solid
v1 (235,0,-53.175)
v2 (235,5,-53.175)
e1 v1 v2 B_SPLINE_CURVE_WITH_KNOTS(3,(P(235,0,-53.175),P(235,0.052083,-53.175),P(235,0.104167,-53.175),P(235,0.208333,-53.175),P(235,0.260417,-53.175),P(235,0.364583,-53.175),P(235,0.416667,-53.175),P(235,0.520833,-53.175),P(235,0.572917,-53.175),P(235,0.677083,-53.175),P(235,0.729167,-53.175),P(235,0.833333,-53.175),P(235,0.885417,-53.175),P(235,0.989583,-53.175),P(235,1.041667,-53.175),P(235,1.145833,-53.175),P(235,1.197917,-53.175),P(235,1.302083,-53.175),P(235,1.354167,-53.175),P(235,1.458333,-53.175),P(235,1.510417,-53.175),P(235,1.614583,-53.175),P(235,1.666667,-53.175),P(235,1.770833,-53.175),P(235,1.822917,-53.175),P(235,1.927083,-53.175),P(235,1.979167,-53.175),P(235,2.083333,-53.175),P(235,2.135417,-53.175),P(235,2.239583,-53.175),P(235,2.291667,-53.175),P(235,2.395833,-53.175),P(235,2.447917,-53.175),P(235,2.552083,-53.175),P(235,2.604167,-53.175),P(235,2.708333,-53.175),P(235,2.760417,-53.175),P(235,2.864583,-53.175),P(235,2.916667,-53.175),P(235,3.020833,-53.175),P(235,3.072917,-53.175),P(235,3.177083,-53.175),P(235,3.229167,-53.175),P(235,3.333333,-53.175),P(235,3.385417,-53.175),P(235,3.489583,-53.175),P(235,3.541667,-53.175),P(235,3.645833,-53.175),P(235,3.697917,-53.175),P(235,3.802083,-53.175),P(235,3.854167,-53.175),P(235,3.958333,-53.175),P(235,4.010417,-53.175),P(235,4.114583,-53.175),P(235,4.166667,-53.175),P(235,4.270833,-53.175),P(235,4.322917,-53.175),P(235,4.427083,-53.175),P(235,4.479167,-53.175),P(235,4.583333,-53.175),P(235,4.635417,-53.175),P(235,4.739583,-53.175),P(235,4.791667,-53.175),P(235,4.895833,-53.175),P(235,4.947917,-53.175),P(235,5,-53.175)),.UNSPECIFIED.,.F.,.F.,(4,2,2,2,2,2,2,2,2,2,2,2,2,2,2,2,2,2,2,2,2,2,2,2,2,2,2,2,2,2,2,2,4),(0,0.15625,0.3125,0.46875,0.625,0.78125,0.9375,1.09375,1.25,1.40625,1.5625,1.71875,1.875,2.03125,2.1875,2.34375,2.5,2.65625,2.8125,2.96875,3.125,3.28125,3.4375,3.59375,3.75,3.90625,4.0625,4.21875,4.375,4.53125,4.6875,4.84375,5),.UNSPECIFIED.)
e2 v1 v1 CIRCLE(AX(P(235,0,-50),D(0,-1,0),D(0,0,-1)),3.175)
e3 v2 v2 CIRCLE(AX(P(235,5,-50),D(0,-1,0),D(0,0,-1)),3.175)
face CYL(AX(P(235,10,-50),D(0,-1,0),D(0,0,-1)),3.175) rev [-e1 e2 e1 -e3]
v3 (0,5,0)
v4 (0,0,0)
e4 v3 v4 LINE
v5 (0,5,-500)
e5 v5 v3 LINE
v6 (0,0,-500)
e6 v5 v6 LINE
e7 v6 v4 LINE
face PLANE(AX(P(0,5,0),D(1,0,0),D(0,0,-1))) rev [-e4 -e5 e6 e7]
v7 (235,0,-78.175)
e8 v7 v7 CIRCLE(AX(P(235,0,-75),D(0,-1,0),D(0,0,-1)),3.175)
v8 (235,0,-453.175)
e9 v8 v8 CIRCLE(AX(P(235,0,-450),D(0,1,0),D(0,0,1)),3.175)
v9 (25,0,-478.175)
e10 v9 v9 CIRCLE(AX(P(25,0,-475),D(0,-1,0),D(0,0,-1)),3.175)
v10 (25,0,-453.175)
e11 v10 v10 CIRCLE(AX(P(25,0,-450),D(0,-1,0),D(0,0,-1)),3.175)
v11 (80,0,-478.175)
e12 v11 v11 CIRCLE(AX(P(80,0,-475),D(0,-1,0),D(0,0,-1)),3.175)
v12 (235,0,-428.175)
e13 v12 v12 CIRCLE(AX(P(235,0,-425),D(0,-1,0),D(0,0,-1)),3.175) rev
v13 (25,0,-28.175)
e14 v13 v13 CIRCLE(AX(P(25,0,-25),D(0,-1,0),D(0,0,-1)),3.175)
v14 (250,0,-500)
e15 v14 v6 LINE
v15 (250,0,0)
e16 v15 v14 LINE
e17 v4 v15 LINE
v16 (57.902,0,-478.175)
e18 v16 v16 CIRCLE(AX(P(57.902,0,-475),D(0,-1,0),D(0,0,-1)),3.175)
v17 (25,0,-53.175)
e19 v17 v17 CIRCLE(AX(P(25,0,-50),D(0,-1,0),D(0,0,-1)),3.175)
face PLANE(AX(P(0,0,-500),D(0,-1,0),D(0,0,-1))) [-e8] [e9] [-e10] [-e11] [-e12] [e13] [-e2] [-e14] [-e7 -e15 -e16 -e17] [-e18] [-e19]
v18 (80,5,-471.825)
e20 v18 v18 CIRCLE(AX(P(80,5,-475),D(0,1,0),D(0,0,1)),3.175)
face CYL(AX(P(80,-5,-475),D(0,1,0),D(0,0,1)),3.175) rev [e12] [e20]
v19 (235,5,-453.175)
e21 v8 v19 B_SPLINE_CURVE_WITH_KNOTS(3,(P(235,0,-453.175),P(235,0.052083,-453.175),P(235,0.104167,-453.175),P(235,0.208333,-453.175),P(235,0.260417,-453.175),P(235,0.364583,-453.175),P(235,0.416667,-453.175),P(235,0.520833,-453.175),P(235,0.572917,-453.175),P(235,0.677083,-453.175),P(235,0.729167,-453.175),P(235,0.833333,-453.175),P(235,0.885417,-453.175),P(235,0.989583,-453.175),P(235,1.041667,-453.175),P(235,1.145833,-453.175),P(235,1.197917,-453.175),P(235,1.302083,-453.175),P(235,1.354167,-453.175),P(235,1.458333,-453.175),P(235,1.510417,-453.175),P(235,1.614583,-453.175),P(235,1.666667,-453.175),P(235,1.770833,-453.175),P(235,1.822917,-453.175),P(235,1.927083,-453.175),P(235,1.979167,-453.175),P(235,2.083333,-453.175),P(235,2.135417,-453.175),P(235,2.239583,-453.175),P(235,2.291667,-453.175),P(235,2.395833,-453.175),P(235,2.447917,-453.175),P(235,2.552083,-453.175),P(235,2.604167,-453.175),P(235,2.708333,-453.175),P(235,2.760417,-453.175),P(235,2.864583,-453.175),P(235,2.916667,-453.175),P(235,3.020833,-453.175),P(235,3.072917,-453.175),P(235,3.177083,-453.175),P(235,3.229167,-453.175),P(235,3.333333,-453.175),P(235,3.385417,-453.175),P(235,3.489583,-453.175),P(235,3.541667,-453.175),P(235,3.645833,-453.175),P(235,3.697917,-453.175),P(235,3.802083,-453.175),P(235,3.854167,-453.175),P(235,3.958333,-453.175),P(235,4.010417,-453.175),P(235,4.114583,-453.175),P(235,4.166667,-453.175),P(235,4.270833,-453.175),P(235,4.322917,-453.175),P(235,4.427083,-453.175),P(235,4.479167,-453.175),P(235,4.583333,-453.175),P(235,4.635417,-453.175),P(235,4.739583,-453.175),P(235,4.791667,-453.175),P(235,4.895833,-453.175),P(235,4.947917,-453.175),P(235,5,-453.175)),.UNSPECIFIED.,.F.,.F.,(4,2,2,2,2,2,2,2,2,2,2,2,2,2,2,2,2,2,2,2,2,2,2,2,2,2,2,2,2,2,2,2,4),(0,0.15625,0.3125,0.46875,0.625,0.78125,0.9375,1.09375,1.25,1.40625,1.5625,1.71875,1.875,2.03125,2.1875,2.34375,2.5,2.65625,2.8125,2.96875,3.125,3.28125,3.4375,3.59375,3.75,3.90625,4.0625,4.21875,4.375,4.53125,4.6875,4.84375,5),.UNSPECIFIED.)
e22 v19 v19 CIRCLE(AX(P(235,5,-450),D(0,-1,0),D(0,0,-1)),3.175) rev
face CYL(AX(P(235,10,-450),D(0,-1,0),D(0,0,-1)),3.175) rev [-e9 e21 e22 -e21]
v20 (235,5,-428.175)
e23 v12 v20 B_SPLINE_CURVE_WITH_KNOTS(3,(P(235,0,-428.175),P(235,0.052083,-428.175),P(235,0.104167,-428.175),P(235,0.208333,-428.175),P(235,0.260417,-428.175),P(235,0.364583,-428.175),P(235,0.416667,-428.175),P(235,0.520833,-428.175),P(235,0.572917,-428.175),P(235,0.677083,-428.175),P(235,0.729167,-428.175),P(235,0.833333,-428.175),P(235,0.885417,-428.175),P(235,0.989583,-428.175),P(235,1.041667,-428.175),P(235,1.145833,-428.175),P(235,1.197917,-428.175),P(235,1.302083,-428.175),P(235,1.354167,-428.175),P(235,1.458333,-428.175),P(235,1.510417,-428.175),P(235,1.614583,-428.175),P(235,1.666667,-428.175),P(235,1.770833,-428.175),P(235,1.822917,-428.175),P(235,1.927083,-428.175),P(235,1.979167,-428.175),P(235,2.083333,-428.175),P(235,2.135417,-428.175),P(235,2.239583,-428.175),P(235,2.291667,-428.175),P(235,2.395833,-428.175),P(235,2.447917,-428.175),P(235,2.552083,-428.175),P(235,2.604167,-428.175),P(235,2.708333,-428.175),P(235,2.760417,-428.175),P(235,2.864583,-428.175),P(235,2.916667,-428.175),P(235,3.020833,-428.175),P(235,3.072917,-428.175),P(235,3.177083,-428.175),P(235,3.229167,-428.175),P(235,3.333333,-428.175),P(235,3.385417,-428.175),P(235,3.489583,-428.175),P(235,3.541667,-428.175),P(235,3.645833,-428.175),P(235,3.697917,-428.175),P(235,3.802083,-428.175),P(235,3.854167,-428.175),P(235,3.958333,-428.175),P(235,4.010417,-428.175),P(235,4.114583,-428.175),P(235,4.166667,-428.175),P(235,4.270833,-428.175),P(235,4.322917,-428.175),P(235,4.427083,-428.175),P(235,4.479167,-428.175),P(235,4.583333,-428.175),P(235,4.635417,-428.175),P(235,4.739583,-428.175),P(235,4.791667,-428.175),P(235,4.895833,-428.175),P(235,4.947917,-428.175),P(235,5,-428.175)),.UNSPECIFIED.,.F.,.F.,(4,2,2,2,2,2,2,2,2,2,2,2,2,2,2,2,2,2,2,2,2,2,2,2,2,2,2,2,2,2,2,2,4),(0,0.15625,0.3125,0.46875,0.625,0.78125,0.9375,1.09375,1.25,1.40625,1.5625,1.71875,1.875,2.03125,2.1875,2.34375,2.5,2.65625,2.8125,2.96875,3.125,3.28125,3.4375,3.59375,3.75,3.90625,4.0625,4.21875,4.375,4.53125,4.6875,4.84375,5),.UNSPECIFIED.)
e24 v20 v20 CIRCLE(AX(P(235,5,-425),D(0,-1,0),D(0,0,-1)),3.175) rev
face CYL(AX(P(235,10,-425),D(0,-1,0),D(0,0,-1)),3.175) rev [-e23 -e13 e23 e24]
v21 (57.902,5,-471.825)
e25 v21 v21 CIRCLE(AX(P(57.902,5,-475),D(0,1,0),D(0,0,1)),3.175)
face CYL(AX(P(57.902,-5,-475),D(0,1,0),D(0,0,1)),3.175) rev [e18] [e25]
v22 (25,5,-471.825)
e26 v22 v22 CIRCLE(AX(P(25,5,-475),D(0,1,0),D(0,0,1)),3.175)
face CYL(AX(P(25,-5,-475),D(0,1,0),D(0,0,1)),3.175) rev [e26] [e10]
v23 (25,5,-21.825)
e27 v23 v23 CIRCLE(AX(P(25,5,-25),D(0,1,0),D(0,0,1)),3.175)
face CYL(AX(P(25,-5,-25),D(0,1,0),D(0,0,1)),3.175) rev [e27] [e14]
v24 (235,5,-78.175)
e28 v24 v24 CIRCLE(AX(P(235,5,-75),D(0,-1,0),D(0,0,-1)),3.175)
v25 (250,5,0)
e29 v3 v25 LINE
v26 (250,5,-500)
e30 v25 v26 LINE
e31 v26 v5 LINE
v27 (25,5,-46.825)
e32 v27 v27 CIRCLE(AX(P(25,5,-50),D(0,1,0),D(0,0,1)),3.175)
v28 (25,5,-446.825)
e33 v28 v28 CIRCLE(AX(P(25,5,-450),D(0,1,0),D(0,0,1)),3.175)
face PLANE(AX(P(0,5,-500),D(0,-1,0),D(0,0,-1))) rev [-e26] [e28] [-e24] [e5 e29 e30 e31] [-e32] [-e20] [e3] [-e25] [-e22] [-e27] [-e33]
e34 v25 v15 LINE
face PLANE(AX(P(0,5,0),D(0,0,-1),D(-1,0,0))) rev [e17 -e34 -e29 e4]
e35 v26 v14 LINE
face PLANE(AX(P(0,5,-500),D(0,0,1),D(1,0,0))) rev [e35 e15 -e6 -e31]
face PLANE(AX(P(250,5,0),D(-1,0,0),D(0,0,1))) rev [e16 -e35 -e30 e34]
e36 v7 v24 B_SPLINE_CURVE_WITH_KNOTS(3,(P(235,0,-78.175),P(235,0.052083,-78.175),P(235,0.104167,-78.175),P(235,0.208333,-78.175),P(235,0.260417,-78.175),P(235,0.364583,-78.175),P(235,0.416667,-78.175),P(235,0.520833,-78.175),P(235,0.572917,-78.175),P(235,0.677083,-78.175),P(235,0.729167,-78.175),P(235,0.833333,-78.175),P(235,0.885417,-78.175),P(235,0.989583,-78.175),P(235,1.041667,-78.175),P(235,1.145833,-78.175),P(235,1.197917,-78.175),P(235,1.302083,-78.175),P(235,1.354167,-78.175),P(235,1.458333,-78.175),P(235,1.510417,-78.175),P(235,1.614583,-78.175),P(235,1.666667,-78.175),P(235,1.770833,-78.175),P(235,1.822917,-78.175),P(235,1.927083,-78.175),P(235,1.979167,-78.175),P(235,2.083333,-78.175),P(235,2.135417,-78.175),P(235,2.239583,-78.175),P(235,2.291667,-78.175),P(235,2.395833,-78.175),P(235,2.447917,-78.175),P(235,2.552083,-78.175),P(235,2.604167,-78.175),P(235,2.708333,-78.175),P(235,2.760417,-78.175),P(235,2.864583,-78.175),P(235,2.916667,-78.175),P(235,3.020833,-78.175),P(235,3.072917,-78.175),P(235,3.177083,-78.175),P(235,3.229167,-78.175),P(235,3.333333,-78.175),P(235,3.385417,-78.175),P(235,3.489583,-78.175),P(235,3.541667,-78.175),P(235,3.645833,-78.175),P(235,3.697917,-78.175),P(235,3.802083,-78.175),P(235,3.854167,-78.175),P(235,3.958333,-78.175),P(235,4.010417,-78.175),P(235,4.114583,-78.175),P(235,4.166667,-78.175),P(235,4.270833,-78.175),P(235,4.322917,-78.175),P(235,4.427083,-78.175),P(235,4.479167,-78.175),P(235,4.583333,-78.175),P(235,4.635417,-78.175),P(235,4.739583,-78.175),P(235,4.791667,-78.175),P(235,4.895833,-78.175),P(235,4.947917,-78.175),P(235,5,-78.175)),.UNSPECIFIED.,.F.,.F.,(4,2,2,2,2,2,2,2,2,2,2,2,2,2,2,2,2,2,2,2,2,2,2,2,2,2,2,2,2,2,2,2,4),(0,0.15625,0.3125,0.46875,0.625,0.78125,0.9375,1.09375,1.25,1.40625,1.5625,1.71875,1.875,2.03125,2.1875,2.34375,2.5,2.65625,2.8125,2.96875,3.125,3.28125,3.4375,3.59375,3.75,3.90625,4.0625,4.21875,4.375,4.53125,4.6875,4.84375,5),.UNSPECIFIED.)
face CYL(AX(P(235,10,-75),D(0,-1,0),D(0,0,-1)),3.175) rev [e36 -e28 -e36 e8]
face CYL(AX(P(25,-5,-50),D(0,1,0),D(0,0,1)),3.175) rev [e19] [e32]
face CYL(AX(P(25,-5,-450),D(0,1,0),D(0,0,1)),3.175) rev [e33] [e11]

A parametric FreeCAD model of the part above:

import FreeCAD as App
import Part
import Sketcher
Q = App.Units.Quantity

doc = App.newDocument("Part")
body = doc.addObject("PartDesign::Body", "Body")

sketch1 = body.newObject("Sketcher::SketchObject", "Sketch")
sketch1.AttachmentSupport = (doc.getObject("XZ_Plane"), [""])
sketch1.MapMode = "FlatFace"
sketch1.addGeometry([
    Part.LineSegment(App.Vector(0, -500, 0), App.Vector(0, 0, 0)),
    Part.LineSegment(App.Vector(0, 0, 0), App.Vector(250, 0, 0)),
    Part.LineSegment(App.Vector(250, 0, 0), App.Vector(250, -500, 0)),
    Part.LineSegment(App.Vector(250, -500, 0), App.Vector(0, -500, 0)),
], False)
sketch1.addConstraint([
    Sketcher.Constraint("Coincident", 0, 2, 1, 1),
    Sketcher.Constraint("Coincident", 1, 2, 2, 1),
    Sketcher.Constraint("Coincident", 2, 2, 3, 1),
    Sketcher.Constraint("Coincident", 3, 2, 0, 1),
    Sketcher.Constraint("Vertical", 0),
    Sketcher.Constraint("Horizontal", 1),
    Sketcher.Constraint("Vertical", 2),
    Sketcher.Constraint("Horizontal", 3),
    Sketcher.Constraint("Coincident", 0, 2, -1, 1),
    Sketcher.Constraint("DistanceX", 1, 1, 1, 2, Q("250 mm")),
    Sketcher.Constraint("DistanceY", 0, 1, 0, 2, Q("500 mm")),
])
pad1 = body.newObject("PartDesign::Pad", "Pad")
pad1.Profile = sketch1
pad1.Length = 5
pad1.Reversed = True

sketch2 = body.newObject("Sketcher::SketchObject", "Sketch001")
sketch2.AttachmentSupport = (doc.getObject("XZ_Plane"), [""])
sketch2.MapMode = "FlatFace"
sketch2.AttachmentOffset = App.Placement(App.Vector(0, 0, -5), App.Rotation())
sketch2.addGeometry([
    Part.Circle(App.Vector(25, -25, 0), App.Vector(0, 0, 1), 3.2),
    Part.Circle(App.Vector(25, -50, 0), App.Vector(0, 0, 1), 3.2),
    Part.Circle(App.Vector(25, -475, 0), App.Vector(0, 0, 1), 3.2),
    Part.Circle(App.Vector(25, -450, 0), App.Vector(0, 0, 1), 3.2),
], False)
sketch2.addConstraint([
    Sketcher.Constraint("Equal", 0, 1),
    Sketcher.Constraint("Equal", 1, 2),
    Sketcher.Constraint("Equal", 2, 3),
    Sketcher.Constraint("Vertical", 0, 3, 1, 3),
    Sketcher.Constraint("Vertical", 1, 3, 2, 3),
    Sketcher.Constraint("Vertical", 2, 3, 3, 3),
    Sketcher.Constraint("Diameter", 0, Q("6.35 mm")),
    Sketcher.Constraint("DistanceX", -1, 1, 0, 3, Q("25 mm")),
    Sketcher.Constraint("DistanceY", 0, 3, -1, 1, Q("25 mm")),
    Sketcher.Constraint("DistanceY", 1, 3, -1, 1, Q("50 mm")),
    Sketcher.Constraint("DistanceY", 2, 3, -1, 1, Q("475 mm")),
    Sketcher.Constraint("DistanceY", 3, 3, -1, 1, Q("450 mm")),
])
pocket1 = body.newObject("PartDesign::Pocket", "Pocket")
pocket1.Profile = sketch2
pocket1.Length = 10
pocket1.Reversed = True

sketch3 = body.newObject("Sketcher::SketchObject", "Sketch002")
sketch3.AttachmentSupport = (doc.getObject("XZ_Plane"), [""])
sketch3.MapMode = "FlatFace"
sketch3.addGeometry([
    Part.Circle(App.Vector(235, -425, 0), App.Vector(0, 0, 1), 3.2),
    Part.Circle(App.Vector(235, -50, 0), App.Vector(0, 0, 1), 3.2),
    Part.Circle(App.Vector(235, -75, 0), App.Vector(0, 0, 1), 3.2),
    Part.Circle(App.Vector(235, -450, 0), App.Vector(0, 0, 1), 3.2),
], False)
sketch3.addConstraint([
    Sketcher.Constraint("Equal", 0, 1),
    Sketcher.Constraint("Equal", 1, 2),
    Sketcher.Constraint("Equal", 2, 3),
    Sketcher.Constraint("Vertical", 0, 3, 1, 3),
    Sketcher.Constraint("Vertical", 1, 3, 2, 3),
    Sketcher.Constraint("Vertical", 2, 3, 3, 3),
    Sketcher.Constraint("Diameter", 0, Q("6.35 mm")),
    Sketcher.Constraint("DistanceX", -1, 1, 0, 3, Q("235 mm")),
    Sketcher.Constraint("DistanceY", 0, 3, -1, 1, Q("425 mm")),
    Sketcher.Constraint("DistanceY", 1, 3, -1, 1, Q("50 mm")),
    Sketcher.Constraint("DistanceY", 2, 3, -1, 1, Q("75 mm")),
    Sketcher.Constraint("DistanceY", 3, 3, -1, 1, Q("450 mm")),
])
pocket2 = body.newObject("PartDesign::Pocket", "Pocket001")
pocket2.Profile = sketch3
pocket2.Length = 10

sketch4 = body.newObject("Sketcher::SketchObject", "Sketch003")
sketch4.AttachmentSupport = (doc.getObject("XZ_Plane"), [""])
sketch4.MapMode = "FlatFace"
sketch4.AttachmentOffset = App.Placement(App.Vector(0, 0, -5), App.Rotation())
sketch4.addGeometry([
    Part.Circle(App.Vector(80, -475, 0), App.Vector(0, 0, 1), 3.2),
    Part.Circle(App.Vector(57.9, -475, 0), App.Vector(0, 0, 1), 3.2),
], False)
sketch4.addConstraint([
    Sketcher.Constraint("Equal", 0, 1),
    Sketcher.Constraint("Horizontal", 0, 3, 1, 3),
    Sketcher.Constraint("Diameter", 0, Q("6.35 mm")),
    Sketcher.Constraint("DistanceX", -1, 1, 0, 3, Q("80 mm")),
    Sketcher.Constraint("DistanceY", 0, 3, -1, 1, Q("475 mm")),
    Sketcher.Constraint("DistanceX", -1, 1, 1, 3, Q("57.902 mm")),
])
pocket3 = body.newObject("PartDesign::Pocket", "Pocket002")
pocket3.Profile = sketch4
pocket3.Length = 10
pocket3.Reversed = True

doc.recompute()
